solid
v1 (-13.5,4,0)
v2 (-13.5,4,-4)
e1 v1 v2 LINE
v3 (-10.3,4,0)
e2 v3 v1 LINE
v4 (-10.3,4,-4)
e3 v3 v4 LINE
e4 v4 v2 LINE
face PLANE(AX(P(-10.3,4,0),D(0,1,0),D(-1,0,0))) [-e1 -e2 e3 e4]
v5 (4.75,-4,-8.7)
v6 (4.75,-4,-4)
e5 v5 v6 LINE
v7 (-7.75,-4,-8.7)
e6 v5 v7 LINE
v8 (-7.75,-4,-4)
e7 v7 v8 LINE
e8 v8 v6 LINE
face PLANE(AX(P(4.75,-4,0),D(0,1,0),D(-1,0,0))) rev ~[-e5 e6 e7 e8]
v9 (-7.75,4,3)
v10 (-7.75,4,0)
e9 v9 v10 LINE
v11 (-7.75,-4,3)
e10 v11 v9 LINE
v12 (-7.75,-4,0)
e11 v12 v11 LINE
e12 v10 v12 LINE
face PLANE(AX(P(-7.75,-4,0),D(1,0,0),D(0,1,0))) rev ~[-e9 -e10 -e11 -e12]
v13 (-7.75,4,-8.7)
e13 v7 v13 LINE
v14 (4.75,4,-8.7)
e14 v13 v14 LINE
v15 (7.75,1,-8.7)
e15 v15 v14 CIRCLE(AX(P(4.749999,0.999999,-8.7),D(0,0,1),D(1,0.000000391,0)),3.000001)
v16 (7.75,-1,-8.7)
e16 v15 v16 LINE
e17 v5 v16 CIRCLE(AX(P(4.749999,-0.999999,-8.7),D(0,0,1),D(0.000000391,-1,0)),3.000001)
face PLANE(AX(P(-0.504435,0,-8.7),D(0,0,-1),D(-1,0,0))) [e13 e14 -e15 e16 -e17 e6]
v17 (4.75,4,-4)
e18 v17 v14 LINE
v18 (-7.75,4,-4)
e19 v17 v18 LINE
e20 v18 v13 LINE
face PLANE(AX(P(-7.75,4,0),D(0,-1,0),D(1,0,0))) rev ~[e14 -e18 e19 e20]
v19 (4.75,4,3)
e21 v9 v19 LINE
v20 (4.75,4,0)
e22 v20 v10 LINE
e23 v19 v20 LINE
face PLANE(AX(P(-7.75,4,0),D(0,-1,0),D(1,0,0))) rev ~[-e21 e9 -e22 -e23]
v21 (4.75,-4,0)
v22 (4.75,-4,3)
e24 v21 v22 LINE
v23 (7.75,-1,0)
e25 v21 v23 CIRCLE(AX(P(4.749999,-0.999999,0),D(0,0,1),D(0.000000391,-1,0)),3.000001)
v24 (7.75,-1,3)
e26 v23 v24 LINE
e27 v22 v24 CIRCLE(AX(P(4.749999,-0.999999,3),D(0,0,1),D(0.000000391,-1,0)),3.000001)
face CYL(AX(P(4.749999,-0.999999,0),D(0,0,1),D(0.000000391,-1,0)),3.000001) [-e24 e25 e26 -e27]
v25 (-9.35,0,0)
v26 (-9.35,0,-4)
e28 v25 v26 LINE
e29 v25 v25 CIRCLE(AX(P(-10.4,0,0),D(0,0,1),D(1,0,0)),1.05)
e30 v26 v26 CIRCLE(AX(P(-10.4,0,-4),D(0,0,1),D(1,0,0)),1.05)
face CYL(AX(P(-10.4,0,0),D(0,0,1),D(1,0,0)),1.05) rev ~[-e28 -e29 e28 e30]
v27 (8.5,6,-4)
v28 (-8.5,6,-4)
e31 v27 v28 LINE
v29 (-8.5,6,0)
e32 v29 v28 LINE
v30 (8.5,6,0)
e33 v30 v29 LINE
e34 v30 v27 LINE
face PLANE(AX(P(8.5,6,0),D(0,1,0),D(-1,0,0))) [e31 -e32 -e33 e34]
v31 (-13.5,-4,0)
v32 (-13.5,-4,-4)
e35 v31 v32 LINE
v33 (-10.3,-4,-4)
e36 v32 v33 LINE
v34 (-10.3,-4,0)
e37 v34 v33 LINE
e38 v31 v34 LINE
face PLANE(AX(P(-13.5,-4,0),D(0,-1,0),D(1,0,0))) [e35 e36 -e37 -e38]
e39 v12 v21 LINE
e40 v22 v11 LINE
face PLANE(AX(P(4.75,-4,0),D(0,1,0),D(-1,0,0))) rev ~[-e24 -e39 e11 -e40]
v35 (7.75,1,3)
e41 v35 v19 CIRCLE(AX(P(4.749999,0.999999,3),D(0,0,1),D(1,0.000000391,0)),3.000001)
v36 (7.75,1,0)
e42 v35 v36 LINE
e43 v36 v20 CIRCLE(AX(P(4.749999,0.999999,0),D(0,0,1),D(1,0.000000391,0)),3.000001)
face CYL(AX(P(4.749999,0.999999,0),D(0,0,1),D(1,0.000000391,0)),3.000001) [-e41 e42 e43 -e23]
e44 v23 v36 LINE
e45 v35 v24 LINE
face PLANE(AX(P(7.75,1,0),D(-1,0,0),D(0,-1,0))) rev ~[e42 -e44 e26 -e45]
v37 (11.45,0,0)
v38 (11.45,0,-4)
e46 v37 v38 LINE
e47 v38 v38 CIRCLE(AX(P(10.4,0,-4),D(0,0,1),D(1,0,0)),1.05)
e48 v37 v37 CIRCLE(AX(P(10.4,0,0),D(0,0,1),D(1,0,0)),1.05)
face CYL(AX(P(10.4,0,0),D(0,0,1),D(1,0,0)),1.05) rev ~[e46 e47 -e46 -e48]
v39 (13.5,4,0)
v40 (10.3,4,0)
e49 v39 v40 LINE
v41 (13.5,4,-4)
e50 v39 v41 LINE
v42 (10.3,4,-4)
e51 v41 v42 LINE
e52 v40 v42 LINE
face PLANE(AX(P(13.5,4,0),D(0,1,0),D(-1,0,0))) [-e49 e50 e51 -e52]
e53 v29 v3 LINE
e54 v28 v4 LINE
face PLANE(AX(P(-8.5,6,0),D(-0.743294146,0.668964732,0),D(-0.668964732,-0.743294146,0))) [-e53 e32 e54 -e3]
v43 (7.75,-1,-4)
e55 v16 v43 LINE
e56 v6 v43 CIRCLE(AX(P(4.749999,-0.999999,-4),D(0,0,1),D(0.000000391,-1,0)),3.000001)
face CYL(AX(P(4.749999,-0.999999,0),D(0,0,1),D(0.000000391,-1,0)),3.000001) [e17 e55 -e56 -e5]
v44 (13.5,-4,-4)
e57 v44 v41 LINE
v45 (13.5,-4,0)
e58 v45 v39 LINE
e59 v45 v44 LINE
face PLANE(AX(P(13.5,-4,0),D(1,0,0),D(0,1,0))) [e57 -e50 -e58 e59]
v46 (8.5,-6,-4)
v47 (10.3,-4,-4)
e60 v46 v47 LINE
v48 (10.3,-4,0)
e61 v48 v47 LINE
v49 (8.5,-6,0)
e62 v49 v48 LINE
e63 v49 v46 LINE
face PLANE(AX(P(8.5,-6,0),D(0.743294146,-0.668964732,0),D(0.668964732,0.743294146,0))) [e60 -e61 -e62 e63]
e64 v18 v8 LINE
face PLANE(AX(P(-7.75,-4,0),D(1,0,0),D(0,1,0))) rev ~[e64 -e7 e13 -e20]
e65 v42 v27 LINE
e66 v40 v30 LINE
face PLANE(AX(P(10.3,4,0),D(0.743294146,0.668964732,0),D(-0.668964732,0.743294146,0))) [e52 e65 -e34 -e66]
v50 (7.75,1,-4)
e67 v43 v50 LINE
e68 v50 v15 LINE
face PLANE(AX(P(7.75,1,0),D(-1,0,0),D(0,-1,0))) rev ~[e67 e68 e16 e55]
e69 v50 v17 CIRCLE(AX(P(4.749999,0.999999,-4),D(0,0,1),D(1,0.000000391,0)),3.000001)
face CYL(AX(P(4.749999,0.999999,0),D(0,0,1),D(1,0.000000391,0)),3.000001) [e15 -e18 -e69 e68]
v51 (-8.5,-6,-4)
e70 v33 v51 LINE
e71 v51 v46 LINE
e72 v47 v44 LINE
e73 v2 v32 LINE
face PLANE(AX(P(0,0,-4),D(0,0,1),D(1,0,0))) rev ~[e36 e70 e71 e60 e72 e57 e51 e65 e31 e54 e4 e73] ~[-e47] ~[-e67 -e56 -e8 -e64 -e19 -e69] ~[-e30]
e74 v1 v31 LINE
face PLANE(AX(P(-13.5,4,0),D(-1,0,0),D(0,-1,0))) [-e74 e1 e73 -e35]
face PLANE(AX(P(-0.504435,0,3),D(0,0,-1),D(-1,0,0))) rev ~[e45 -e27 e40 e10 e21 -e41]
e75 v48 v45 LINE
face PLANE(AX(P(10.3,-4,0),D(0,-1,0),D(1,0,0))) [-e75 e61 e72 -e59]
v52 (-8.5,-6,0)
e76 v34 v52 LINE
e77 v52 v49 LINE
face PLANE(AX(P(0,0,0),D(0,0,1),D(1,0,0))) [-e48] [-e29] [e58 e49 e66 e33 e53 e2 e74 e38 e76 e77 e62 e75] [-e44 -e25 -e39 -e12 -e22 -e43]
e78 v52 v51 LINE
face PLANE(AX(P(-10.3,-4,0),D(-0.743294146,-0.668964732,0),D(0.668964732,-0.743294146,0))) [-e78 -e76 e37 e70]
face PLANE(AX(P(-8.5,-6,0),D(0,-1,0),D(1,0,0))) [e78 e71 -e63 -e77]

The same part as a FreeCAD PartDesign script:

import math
import FreeCAD as App
import Part
import Sketcher

V = App.Vector
Q = App.Units.Quantity

doc = App.newDocument("Part")
body = doc.addObject("PartDesign::Body", "Body")

sketch1 = body.newObject("Sketcher::SketchObject", "Sketch")
sketch1.AttachmentSupport = (doc.getObject("XY_Plane"), [""])
sketch1.MapMode = "FlatFace"
sketch1.addGeometry([
    Part.LineSegment(V(-7.8, 4, 0), V(-7.8, -4, 0)),
    Part.LineSegment(V(-7.8, -4, 0), V(4.8, -4, 0)),
    Part.ArcOfCircle(Part.Circle(V(4.7, -1, 0), V(0, 0, 1), 3), math.radians(-90), math.radians(0)),
    Part.LineSegment(V(7.8, -1, 0), V(7.8, 1, 0)),
    Part.ArcOfCircle(Part.Circle(V(4.7, 1, 0), V(0, 0, 1), 3), math.radians(0), math.radians(90)),
    Part.LineSegment(V(4.8, 4, 0), V(-7.8, 4, 0)),
], False)
sketch1.addConstraint([
    Sketcher.Constraint("Coincident", 0, 2, 1, 1),
    Sketcher.Constraint("Tangent", 1, 2, 2, 1),
    Sketcher.Constraint("Tangent", 2, 2, 3, 1),
    Sketcher.Constraint("Tangent", 3, 2, 4, 1),
    Sketcher.Constraint("Tangent", 4, 2, 5, 1),
    Sketcher.Constraint("Coincident", 5, 2, 0, 1),
    Sketcher.Constraint("Vertical", 0),
    Sketcher.Constraint("Horizontal", 1),
    Sketcher.Constraint("Vertical", 3),
    Sketcher.Constraint("Horizontal", 5),
    Sketcher.Constraint("Equal", 2, 4),
    Sketcher.Constraint("Radius", 2, Q("3.000001 mm")),
    Sketcher.Constraint("DistanceY", 0, 2, 0, 1, Q("8 mm")),
    Sketcher.Constraint("DistanceX", 1, 1, 1, 2, Q("12.5 mm")),
    Sketcher.Constraint("DistanceY", 2, 3, -1, 1, Q("0.999999 mm")),
    Sketcher.Constraint("DistanceX", -1, 1, 2, 3, Q("4.749999 mm")),
])
pad1 = body.newObject("PartDesign::Pad", "Pad")
pad1.Profile = sketch1
pad1.Type = "TwoLengths"
pad1.Length = 3
pad1.Length2 = 8.7

sketch2 = body.newObject("Sketcher::SketchObject", "Sketch001")
sketch2.AttachmentSupport = (doc.getObject("XY_Plane"), [""])
sketch2.MapMode = "FlatFace"
sketch2.addGeometry([
    Part.LineSegment(V(-13.5, 4, 0), V(-13.5, -4, 0)),
    Part.LineSegment(V(-13.5, -4, 0), V(-10.3, -4, 0)),
    Part.LineSegment(V(-10.3, -4, 0), V(-8.5, -6, 0)),
    Part.LineSegment(V(-8.5, -6, 0), V(8.5, -6, 0)),
    Part.LineSegment(V(8.5, -6, 0), V(10.3, -4, 0)),
    Part.LineSegment(V(10.3, -4, 0), V(13.5, -4, 0)),
    Part.LineSegment(V(13.5, -4, 0), V(13.5, 4, 0)),
    Part.LineSegment(V(13.5, 4, 0), V(10.3, 4, 0)),
    Part.LineSegment(V(10.3, 4, 0), V(8.5, 6, 0)),
    Part.LineSegment(V(8.5, 6, 0), V(-8.5, 6, 0)),
    Part.LineSegment(V(-8.5, 6, 0), V(-10.3, 4, 0)),
    Part.LineSegment(V(-10.3, 4, 0), V(-13.5, 4, 0)),
    Part.Circle(V(-10.4, 0, 0), V(0, 0, 1), 1.1),
    Part.Circle(V(10.4, 0, 0), V(0, 0, 1), 1.1),
], False)
sketch2.addConstraint([
    Sketcher.Constraint("Coincident", 0, 2, 1, 1),
    Sketcher.Constraint("Coincident", 1, 2, 2, 1),
    Sketcher.Constraint("Coincident", 2, 2, 3, 1),
    Sketcher.Constraint("Coincident", 3, 2, 4, 1),
    Sketcher.Constraint("Coincident", 4, 2, 5, 1),
    Sketcher.Constraint("Coincident", 5, 2, 6, 1),
    Sketcher.Constraint("Coincident", 6, 2, 7, 1),
    Sketcher.Constraint("Coincident", 7, 2, 8, 1),
    Sketcher.Constraint("Coincident", 8, 2, 9, 1),
    Sketcher.Constraint("Coincident", 9, 2, 10, 1),
    Sketcher.Constraint("Coincident", 10, 2, 11, 1),
    Sketcher.Constraint("Coincident", 11, 2, 0, 1),
    Sketcher.Constraint("Vertical", 0),
    Sketcher.Constraint("Horizontal", 1),
    Sketcher.Constraint("Horizontal", 3),
    Sketcher.Constraint("Horizontal", 5),
    Sketcher.Constraint("Vertical", 6),
    Sketcher.Constraint("Horizontal", 7),
    Sketcher.Constraint("Horizontal", 9),
    Sketcher.Constraint("Horizontal", 11),
    Sketcher.Constraint("Equal", 12, 13),
    Sketcher.Constraint("Symmetric", 12, 3, 13, 3, -1, 1),
    Sketcher.Constraint("Symmetric", 0, 2, 6, 2, -1, 1),
    Sketcher.Constraint("Symmetric", 2, 2, 8, 2, -1, 1),
    Sketcher.Constraint("Symmetric", 4, 2, 10, 2, -1, 1),
    Sketcher.Constraint("Symmetric", 1, 2, 4, 2, -2),
    Sketcher.Constraint("PointOnObject", 12, 3, -1),
    Sketcher.Constraint("Parallel", 2, 8),
    Sketcher.Constraint("Parallel", 4, 10),
    Sketcher.Constraint("Vertical", 3, 2, 8, 2),
    Sketcher.Constraint("Diameter", 12, Q("2.1 mm")),
    Sketcher.Constraint("DistanceX", 3, 1, 3, 2, Q("17 mm")),
    Sketcher.Constraint("DistanceY", 0, 2, 0, 1, Q("8 mm")),
    Sketcher.Constraint("DistanceX", 1, 1, 1, 2, Q("3.2 mm")),
    Sketcher.Constraint("DistanceY", 2, 2, -1, 1, Q("6 mm")),
    Sketcher.Constraint("DistanceX", 0, 2, 2, 2, Q("5 mm")),
    Sketcher.Constraint("DistanceX", 12, 3, -1, 1, Q("10.4 mm")),
])
pad2 = body.newObject("PartDesign::Pad", "Pad001")
pad2.Profile = sketch2
pad2.Length = 4
pad2.Reversed = True

doc.recompute()
